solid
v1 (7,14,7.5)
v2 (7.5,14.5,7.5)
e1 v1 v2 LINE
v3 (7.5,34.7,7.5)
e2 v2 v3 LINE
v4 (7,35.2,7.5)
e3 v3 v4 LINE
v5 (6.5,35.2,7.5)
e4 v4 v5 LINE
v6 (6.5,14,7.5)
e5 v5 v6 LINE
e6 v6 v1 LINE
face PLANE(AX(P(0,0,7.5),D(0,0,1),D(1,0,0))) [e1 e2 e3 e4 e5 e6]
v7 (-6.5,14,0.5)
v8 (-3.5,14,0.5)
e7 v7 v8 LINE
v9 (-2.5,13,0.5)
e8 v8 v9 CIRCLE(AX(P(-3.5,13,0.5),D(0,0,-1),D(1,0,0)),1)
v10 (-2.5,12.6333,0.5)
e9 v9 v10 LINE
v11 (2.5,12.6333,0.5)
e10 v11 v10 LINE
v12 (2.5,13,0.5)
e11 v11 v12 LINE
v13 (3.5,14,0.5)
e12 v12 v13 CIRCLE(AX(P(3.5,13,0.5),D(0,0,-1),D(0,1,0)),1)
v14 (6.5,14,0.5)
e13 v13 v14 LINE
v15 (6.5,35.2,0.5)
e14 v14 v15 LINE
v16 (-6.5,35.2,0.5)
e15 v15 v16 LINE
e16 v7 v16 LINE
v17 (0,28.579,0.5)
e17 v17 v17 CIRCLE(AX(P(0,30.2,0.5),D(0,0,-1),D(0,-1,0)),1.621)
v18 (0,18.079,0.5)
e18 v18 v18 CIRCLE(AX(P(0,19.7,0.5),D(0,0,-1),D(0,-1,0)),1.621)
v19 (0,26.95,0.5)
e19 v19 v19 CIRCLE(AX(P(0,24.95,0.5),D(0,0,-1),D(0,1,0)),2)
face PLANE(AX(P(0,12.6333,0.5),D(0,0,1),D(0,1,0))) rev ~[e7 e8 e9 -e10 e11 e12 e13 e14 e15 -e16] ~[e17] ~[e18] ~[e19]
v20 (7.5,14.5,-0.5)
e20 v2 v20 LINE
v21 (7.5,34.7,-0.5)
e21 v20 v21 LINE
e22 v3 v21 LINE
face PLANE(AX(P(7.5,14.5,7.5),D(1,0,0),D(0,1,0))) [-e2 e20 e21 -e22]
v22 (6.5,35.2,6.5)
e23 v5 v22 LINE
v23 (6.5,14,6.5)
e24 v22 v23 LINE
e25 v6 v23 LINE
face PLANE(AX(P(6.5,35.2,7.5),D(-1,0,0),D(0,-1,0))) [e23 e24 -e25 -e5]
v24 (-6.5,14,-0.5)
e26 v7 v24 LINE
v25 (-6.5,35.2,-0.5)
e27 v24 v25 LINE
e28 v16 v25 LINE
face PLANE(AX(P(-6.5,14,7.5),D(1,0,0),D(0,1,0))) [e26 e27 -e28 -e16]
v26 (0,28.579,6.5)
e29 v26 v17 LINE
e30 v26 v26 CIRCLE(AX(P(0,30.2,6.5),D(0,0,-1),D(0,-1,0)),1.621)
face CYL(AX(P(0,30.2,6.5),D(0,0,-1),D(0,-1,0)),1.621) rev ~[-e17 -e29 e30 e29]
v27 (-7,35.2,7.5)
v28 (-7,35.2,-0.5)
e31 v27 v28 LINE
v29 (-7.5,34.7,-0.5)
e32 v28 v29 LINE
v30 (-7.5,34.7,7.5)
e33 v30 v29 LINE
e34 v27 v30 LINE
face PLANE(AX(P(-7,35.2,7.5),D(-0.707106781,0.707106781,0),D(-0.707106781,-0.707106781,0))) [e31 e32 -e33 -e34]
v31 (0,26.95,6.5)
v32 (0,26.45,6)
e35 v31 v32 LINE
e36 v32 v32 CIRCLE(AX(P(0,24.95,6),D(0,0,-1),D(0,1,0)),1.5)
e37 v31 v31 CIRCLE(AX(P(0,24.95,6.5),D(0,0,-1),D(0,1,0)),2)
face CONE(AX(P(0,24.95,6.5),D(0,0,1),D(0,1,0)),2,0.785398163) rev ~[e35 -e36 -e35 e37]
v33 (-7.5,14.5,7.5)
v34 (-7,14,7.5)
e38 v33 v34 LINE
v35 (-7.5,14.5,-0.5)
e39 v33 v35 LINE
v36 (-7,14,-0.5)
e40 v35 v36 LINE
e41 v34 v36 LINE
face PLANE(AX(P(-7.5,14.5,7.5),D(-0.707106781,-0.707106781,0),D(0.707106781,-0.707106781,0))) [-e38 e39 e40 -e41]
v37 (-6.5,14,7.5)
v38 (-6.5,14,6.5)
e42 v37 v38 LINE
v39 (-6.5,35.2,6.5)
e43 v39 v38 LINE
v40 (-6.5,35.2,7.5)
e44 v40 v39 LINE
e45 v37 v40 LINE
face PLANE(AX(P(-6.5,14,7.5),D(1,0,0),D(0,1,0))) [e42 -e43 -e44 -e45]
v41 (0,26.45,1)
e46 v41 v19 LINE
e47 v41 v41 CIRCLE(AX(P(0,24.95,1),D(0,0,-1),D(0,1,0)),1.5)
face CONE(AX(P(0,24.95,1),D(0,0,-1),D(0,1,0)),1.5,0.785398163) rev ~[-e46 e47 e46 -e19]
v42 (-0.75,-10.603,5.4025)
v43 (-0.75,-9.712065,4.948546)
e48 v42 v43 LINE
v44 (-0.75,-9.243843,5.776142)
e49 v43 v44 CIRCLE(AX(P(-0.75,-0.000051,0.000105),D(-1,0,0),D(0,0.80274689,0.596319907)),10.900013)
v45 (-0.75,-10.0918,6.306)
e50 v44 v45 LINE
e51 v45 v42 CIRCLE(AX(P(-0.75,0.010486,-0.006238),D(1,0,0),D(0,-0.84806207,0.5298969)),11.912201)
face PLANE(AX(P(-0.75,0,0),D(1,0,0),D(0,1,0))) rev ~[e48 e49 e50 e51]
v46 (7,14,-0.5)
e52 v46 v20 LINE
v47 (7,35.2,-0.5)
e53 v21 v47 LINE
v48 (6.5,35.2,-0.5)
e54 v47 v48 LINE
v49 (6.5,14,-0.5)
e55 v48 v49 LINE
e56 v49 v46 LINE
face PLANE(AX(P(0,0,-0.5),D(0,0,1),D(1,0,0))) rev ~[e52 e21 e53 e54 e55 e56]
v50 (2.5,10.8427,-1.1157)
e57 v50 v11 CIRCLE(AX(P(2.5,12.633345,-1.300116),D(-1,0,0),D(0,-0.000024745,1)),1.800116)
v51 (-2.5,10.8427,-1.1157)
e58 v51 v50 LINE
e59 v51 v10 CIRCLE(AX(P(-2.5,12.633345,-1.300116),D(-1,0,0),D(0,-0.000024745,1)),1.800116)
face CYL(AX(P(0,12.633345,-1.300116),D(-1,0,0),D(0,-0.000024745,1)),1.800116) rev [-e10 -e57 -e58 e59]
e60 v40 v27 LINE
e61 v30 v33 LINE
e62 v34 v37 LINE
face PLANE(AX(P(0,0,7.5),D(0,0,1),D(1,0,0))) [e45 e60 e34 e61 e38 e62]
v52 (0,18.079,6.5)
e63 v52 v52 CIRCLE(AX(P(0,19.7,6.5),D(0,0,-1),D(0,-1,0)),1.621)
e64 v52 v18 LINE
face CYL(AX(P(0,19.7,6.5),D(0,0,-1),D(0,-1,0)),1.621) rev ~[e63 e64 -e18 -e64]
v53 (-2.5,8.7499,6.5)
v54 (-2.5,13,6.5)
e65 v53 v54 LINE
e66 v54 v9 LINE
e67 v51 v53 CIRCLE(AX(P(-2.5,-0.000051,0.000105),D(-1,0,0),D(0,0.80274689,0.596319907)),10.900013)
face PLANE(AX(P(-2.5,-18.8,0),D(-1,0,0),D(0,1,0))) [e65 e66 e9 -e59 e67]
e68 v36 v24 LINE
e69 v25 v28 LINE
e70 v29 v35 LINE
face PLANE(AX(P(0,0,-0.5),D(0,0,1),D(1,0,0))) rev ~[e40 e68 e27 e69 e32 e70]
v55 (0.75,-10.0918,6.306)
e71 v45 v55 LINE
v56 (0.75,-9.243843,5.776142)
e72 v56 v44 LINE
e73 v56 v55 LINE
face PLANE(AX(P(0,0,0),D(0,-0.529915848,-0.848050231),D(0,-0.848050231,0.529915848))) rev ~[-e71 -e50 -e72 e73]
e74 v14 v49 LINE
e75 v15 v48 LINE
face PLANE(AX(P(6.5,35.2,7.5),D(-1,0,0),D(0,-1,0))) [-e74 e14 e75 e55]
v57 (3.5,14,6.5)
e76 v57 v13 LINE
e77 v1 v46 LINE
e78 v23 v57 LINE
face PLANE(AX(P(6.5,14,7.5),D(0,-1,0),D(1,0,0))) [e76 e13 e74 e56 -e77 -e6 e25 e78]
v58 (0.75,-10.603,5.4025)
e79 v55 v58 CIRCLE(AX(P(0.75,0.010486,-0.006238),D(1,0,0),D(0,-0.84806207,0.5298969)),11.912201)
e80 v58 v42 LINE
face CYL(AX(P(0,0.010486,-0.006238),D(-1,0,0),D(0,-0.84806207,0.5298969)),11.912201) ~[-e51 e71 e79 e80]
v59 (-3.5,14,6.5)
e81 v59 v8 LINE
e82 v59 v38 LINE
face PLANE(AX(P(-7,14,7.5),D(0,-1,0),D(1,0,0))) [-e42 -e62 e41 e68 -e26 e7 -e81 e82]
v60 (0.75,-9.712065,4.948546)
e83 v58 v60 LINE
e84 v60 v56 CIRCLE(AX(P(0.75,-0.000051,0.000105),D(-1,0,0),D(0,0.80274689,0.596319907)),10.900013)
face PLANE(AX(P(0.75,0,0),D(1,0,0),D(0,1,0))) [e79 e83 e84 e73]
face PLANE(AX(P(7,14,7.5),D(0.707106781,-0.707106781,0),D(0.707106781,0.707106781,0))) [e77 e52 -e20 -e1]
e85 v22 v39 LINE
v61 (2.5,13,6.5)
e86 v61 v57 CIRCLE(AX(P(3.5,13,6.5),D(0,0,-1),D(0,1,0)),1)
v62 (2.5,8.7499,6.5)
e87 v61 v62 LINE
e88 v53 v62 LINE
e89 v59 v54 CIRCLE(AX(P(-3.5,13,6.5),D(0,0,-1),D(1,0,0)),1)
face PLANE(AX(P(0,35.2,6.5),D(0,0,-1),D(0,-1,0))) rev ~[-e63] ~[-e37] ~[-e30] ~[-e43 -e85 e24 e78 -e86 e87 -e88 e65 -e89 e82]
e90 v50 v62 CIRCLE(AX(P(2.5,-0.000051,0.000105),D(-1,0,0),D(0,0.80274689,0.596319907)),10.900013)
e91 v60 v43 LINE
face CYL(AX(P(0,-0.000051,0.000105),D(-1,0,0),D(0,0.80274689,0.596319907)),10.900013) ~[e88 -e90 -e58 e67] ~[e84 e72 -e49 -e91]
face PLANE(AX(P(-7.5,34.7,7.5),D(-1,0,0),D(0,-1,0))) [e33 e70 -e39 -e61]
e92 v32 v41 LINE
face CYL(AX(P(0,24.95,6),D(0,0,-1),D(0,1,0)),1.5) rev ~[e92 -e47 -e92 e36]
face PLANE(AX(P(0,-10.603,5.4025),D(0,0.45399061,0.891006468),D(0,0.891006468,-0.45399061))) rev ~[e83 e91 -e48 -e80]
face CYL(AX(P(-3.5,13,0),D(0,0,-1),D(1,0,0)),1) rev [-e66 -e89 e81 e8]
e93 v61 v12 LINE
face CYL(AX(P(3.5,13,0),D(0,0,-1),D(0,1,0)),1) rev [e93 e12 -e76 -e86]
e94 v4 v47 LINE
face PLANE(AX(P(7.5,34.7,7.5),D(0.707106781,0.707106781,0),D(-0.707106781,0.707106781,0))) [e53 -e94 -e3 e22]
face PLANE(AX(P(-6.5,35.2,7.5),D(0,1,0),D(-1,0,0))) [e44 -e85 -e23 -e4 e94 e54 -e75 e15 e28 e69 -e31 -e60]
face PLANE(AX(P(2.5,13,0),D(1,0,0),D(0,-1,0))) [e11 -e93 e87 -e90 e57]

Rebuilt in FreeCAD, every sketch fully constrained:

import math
import FreeCAD as App
import Part
import Sketcher

V = App.Vector
Q = App.Units.Quantity

doc = App.newDocument("Part")
body = doc.addObject("PartDesign::Body", "Body")

sketch1 = body.newObject("Sketcher::SketchObject", "Sketch")
sketch1.AttachmentSupport = (doc.getObject("YZ_Plane"), [""])
sketch1.MapMode = "FlatFace"
sketch1.addGeometry([
    Part.LineSegment(V(35.2, 6.5, 0), V(8.7, 6.5, 0)),
    Part.ArcOfCircle(Part.Circle(V(0, 0, 0), V(0, 0, 1), 10.9), math.radians(37), math.radians(354)),
    Part.ArcOfCircle(Part.Circle(V(12.6, -1.3, 0), V(0, 0, 1), 1.8), math.radians(90), math.radians(174)),
    Part.LineSegment(V(12.6, 0.5, 0), V(35.2, 0.5, 0)),
    Part.LineSegment(V(35.2, 0.5, 0), V(35.2, 6.5, 0)),
], False)
sketch1.addConstraint([
    Sketcher.Constraint("Coincident", 0, 2, 1, 1),
    Sketcher.Constraint("Tangent", 1, 2, 2, 2),
    Sketcher.Constraint("Tangent", 2, 1, 3, 1),
    Sketcher.Constraint("Coincident", 3, 2, 4, 1),
    Sketcher.Constraint("Coincident", 4, 2, 0, 1),
    Sketcher.Constraint("Horizontal", 0),
    Sketcher.Constraint("Horizontal", 3),
    Sketcher.Constraint("Vertical", 4),
    Sketcher.Constraint("Coincident", 1, 3, -1, 1),
    Sketcher.Constraint("Radius", 1, Q("10.9 mm")),
    Sketcher.Constraint("Radius", 2, Q("1.8 mm")),
    Sketcher.Constraint("DistanceY", 4, 1, 4, 2, Q("6 mm")),
    Sketcher.Constraint("DistanceX", 0, 2, 0, 1, Q("26.45 mm")),
    Sketcher.Constraint("DistanceY", 2, 3, -1, 1, Q("1.3 mm")),
])
pad1 = body.newObject("PartDesign::Pad", "Pad")
pad1.Profile = sketch1
pad1.Length = 13
pad1.Midplane = True

sketch2 = body.newObject("Sketcher::SketchObject", "Sketch001")
sketch2.AttachmentSupport = (doc.getObject("XY_Plane"), [""])
sketch2.MapMode = "FlatFace"
sketch2.addGeometry([
    Part.LineSegment(V(-6.5, 14, 0), V(-6.5, -21.8, 0)),
    Part.LineSegment(V(-6.5, -21.8, 0), V(6.5, -21.8, 0)),
    Part.LineSegment(V(6.5, -21.8, 0), V(6.5, 14, 0)),
    Part.LineSegment(V(6.5, 14, 0), V(3.5, 14, 0)),
    Part.ArcOfCircle(Part.Circle(V(3.5, 13, 0), V(0, 0, 1), 1), math.radians(90), math.radians(180)),
    Part.LineSegment(V(2.5, 13, 0), V(2.5, -18.8, 0)),
    Part.LineSegment(V(2.5, -18.8, 0), V(-2.5, -18.8, 0)),
    Part.LineSegment(V(-2.5, -18.8, 0), V(-2.5, 13, 0)),
    Part.ArcOfCircle(Part.Circle(V(-3.5, 13, 0), V(0, 0, 1), 1), math.radians(0), math.radians(90)),
    Part.LineSegment(V(-3.5, 14, 0), V(-6.5, 14, 0)),
], False)
sketch2.addConstraint([
    Sketcher.Constraint("Coincident", 0, 2, 1, 1),
    Sketcher.Constraint("Coincident", 1, 2, 2, 1),
    Sketcher.Constraint("Coincident", 2, 2, 3, 1),
    Sketcher.Constraint("Tangent", 3, 2, 4, 1),
    Sketcher.Constraint("Tangent", 4, 2, 5, 1),
    Sketcher.Constraint("Coincident", 5, 2, 6, 1),
    Sketcher.Constraint("Coincident", 6, 2, 7, 1),
    Sketcher.Constraint("Tangent", 7, 2, 8, 1),
    Sketcher.Constraint("Tangent", 8, 2, 9, 1),
    Sketcher.Constraint("Coincident", 9, 2, 0, 1),
    Sketcher.Constraint("Vertical", 0),
    Sketcher.Constraint("Horizontal", 1),
    Sketcher.Constraint("Vertical", 2),
    Sketcher.Constraint("Horizontal", 3),
    Sketcher.Constraint("Vertical", 5),
    Sketcher.Constraint("Horizontal", 6),
    Sketcher.Constraint("Vertical", 7),
    Sketcher.Constraint("Horizontal", 9),
    Sketcher.Constraint("Equal", 4, 8),
    Sketcher.Constraint("Symmetric", 4, 3, 8, 3, -2),
    Sketcher.Constraint("Equal", 3, 9),
    Sketcher.Constraint("Radius", 4, Q("1 mm")),
    Sketcher.Constraint("DistanceX", 1, 1, 1, 2, Q("13 mm")),
    Sketcher.Constraint("DistanceX", 3, 2, 3, 1, Q("3 mm")),
    Sketcher.Constraint("DistanceY", 0, 2, 0, 1, Q("35.8 mm")),
    Sketcher.Constraint("DistanceY", 5, 2, 5, 1, Q("31.8 mm")),
    Sketcher.Constraint("DistanceY", -1, 1, 4, 3, Q("13 mm")),
])
pocket1 = body.newObject("PartDesign::Pocket", "Pocket")
pocket1.Profile = sketch2
pocket1.Length = 30
pocket1.Midplane = True

sketch3 = body.newObject("Sketcher::SketchObject", "Sketch002")
sketch3.AttachmentSupport = (doc.getObject("XY_Plane"), [""])
sketch3.MapMode = "FlatFace"
sketch3.AttachmentOffset = App.Placement(V(0, 0, 7.5), App.Rotation())
sketch3.addGeometry([
    Part.LineSegment(V(6.5, 35.2, 0), V(6.5, 14, 0)),
    Part.LineSegment(V(6.5, 14, 0), V(7, 14, 0)),
    Part.LineSegment(V(7, 14, 0), V(7.5, 14.5, 0)),
    Part.LineSegment(V(7.5, 14.5, 0), V(7.5, 34.7, 0)),
    Part.LineSegment(V(7.5, 34.7, 0), V(7, 35.2, 0)),
    Part.LineSegment(V(7, 35.2, 0), V(6.5, 35.2, 0)),
], False)
sketch3.addConstraint([
    Sketcher.Constraint("Coincident", 0, 2, 1, 1),
    Sketcher.Constraint("Coincident", 1, 2, 2, 1),
    Sketcher.Constraint("Coincident", 2, 2, 3, 1),
    Sketcher.Constraint("Coincident", 3, 2, 4, 1),
    Sketcher.Constraint("Coincident", 4, 2, 5, 1),
    Sketcher.Constraint("Coincident", 5, 2, 0, 1),
    Sketcher.Constraint("Vertical", 0),
    Sketcher.Constraint("Horizontal", 1),
    Sketcher.Constraint("Vertical", 3),
    Sketcher.Constraint("Horizontal", 5),
    Sketcher.Constraint("Perpendicular", 2, 4),
    Sketcher.Constraint("Vertical", 1, 2, 4, 2),
    Sketcher.Constraint("Equal", 2, 4),
    Sketcher.Constraint("DistanceX", 1, 1, 1, 2, Q("0.5 mm")),
    Sketcher.Constraint("DistanceY", 0, 2, 0, 1, Q("21.2 mm")),
    Sketcher.Constraint("DistanceY", 3, 1, 3, 2, Q("20.2 mm")),
    Sketcher.Constraint("DistanceY", -1, 1, 0, 2, Q("14 mm")),
    Sketcher.Constraint("DistanceX", -1, 1, 1, 2, Q("7 mm")),
])
pad2 = body.newObject("PartDesign::Pad", "Pad001")
pad2.Profile = sketch3
pad2.Length = 8
pad2.Reversed = True

sketch4 = body.newObject("Sketcher::SketchObject", "Sketch003")
sketch4.AttachmentSupport = (doc.getObject("XY_Plane"), [""])
sketch4.MapMode = "FlatFace"
sketch4.AttachmentOffset = App.Placement(V(0, 0, 7.5), App.Rotation())
sketch4.addGeometry([
    Part.LineSegment(V(-7.5, 34.7, 0), V(-7.5, 14.5, 0)),
    Part.LineSegment(V(-7.5, 14.5, 0), V(-7, 14, 0)),
    Part.LineSegment(V(-7, 14, 0), V(-6.5, 14, 0)),
    Part.LineSegment(V(-6.5, 14, 0), V(-6.5, 35.2, 0)),
    Part.LineSegment(V(-6.5, 35.2, 0), V(-7, 35.2, 0)),
    Part.LineSegment(V(-7, 35.2, 0), V(-7.5, 34.7, 0)),
], False)
sketch4.addConstraint([
    Sketcher.Constraint("Coincident", 0, 2, 1, 1),
    Sketcher.Constraint("Coincident", 1, 2, 2, 1),
    Sketcher.Constraint("Coincident", 2, 2, 3, 1),
    Sketcher.Constraint("Coincident", 3, 2, 4, 1),
    Sketcher.Constraint("Coincident", 4, 2, 5, 1),
    Sketcher.Constraint("Coincident", 5, 2, 0, 1),
    Sketcher.Constraint("Vertical", 0),
    Sketcher.Constraint("Horizontal", 2),
    Sketcher.Constraint("Vertical", 3),
    Sketcher.Constraint("Horizontal", 4),
    Sketcher.Constraint("Perpendicular", 1, 5),
    Sketcher.Constraint("Vertical", 1, 2, 4, 2),
    Sketcher.Constraint("Equal", 1, 5),
    Sketcher.Constraint("DistanceX", 2, 1, 2, 2, Q("0.5 mm")),
    Sketcher.Constraint("DistanceY", 0, 2, 0, 1, Q("20.2 mm")),
    Sketcher.Constraint("DistanceY", 3, 1, 3, 2, Q("21.2 mm")),
    Sketcher.Constraint("DistanceX", 1, 2, -1, 1, Q("7 mm")),
    Sketcher.Constraint("DistanceY", -1, 1, 1, 2, Q("14 mm")),
])
pad3 = body.newObject("PartDesign::Pad", "Pad002")
pad3.Profile = sketch4
pad3.Length = 8
pad3.Reversed = True

sketch5 = body.newObject("Sketcher::SketchObject", "Sketch004")
sketch5.AttachmentSupport = (doc.getObject("YZ_Plane"), [""])
sketch5.MapMode = "FlatFace"
sketch5.addGeometry([
    Part.LineSegment(V(24.9, 6.5, 0), V(24.9, 0.5, 0)),
    Part.LineSegment(V(24.9, 0.5, 0), V(26.9, 0.5, 0)),
    Part.LineSegment(V(26.9, 0.5, 0), V(26.4, 1, 0)),
    Part.LineSegment(V(26.4, 1, 0), V(26.4, 6, 0)),
    Part.LineSegment(V(26.4, 6, 0), V(26.9, 6.5, 0)),
    Part.LineSegment(V(26.9, 6.5, 0), V(24.9, 6.5, 0)),
], False)
sketch5.addGeometry(Part.LineSegment(V(24.9, 6.5, 0), V(24.9, 0.5, 0)), True)
sketch5.addConstraint([
    Sketcher.Constraint("Coincident", 0, 2, 1, 1),
    Sketcher.Constraint("Coincident", 1, 2, 2, 1),
    Sketcher.Constraint("Coincident", 2, 2, 3, 1),
    Sketcher.Constraint("Coincident", 3, 2, 4, 1),
    Sketcher.Constraint("Coincident", 4, 2, 5, 1),
    Sketcher.Constraint("Coincident", 5, 2, 0, 1),
    Sketcher.Constraint("Vertical", 0),
    Sketcher.Constraint("Horizontal", 1),
    Sketcher.Constraint("Vertical", 3),
    Sketcher.Constraint("Horizontal", 5),
    Sketcher.Constraint("Vertical", 6),
    Sketcher.Constraint("Coincident", 6, 1, 5, 2),
    Sketcher.Constraint("Perpendicular", 2, 4),
    Sketcher.Constraint("Horizontal", 1, 2, 6, 2),
    Sketcher.Constraint("Vertical", 1, 2, 4, 2),
    Sketcher.Constraint("Equal", 2, 4),
    Sketcher.Constraint("DistanceX", 1, 1, 1, 2, Q("2 mm")),
    Sketcher.Constraint("DistanceY", 0, 2, 0, 1, Q("6 mm")),
    Sketcher.Constraint("DistanceY", 3, 1, 3, 2, Q("5 mm")),
    Sketcher.Constraint("DistanceY", -1, 1, 2, 2, Q("1 mm")),
    Sketcher.Constraint("DistanceX", -1, 1, 0, 2, Q("24.95 mm")),
])
groove = body.newObject("PartDesign::Groove", "Groove")
groove.Profile = sketch5
groove.ReferenceAxis = (sketch5, ["Axis0"])
groove.Angle = 360

sketch6 = body.newObject("Sketcher::SketchObject", "Sketch005")
sketch6.AttachmentSupport = (doc.getObject("XY_Plane"), [""])
sketch6.MapMode = "FlatFace"
sketch6.AttachmentOffset = App.Placement(V(0, 0, 6.5), App.Rotation())
sketch6.addGeometry(Part.Circle(V(0, 19.7, 0), V(0, 0, 1), 1.6), False)
sketch6.addConstraint([
    Sketcher.Constraint("PointOnObject", 0, 3, -2),
    Sketcher.Constraint("Diameter", 0, Q("3.242 mm")),
    Sketcher.Constraint("DistanceY", -1, 1, 0, 3, Q("19.7 mm")),
])
doc.recompute()
hole = body.newObject("PartDesign::Hole", "Hole")
hole.Profile = sketch6
hole.ThreadType = "None"
hole.Diameter = 3.242
hole.DepthType = "Dimension"
hole.Depth = 6
hole.DrillPoint = "Flat"

sketch7 = body.newObject("Sketcher::SketchObject", "Sketch006")
sketch7.AttachmentSupport = (doc.getObject("XY_Plane"), [""])
sketch7.MapMode = "FlatFace"
sketch7.AttachmentOffset = App.Placement(V(0, 0, 6.5), App.Rotation())
sketch7.addGeometry(Part.Circle(V(0, 30.2, 0), V(0, 0, 1), 1.6), False)
sketch7.addConstraint([
    Sketcher.Constraint("PointOnObject", 0, 3, -2),
    Sketcher.Constraint("Diameter", 0, Q("3.242 mm")),
    Sketcher.Constraint("DistanceY", -1, 1, 0, 3, Q("30.2 mm")),
])
doc.recompute()
hole2 = body.newObject("PartDesign::Hole", "Hole001")
hole2.Profile = sketch7
hole2.ThreadType = "None"
hole2.Diameter = 3.242
hole2.DepthType = "Dimension"
hole2.Depth = 6
hole2.DrillPoint = "Flat"

sketch8 = body.newObject("Sketcher::SketchObject", "Sketch007")
sketch8.AttachmentSupport = (doc.getObject("YZ_Plane"), [""])
sketch8.MapMode = "FlatFace"
sketch8.addGeometry([
    Part.LineSegment(V(0, 0, 0), V(-10.1, 6.3, 0)),
    Part.ArcOfCircle(Part.Circle(V(0, 0, 0), V(0, 0, 1), 11.9), math.radians(148), math.radians(153)),
    Part.LineSegment(V(-10.6, 5.4, 0), V(0, 0, 0)),
], False)
sketch8.addConstraint([
    Sketcher.Constraint("Coincident", 0, 2, 1, 1),
    Sketcher.Constraint("Coincident", 1, 2, 2, 1),
    Sketcher.Constraint("Coincident", 2, 2, 0, 1),
    Sketcher.Constraint("Coincident", 2, 2, -1, 1),
    Sketcher.Constraint("Equal", 0, 2),
    Sketcher.Constraint("Angle", 0, Q("148.0002 deg")),
    Sketcher.Constraint("Angle", 2, Q("-27 deg")),
    Sketcher.Constraint("Distance", 0, Q("11.9 mm")),
    Sketcher.Constraint("Radius", 1, Q("11.9122 mm")),
])
pad4 = body.newObject("PartDesign::Pad", "Pad003")
pad4.Profile = sketch8
pad4.Length = 1.5
pad4.Midplane = True

doc.recompute()
